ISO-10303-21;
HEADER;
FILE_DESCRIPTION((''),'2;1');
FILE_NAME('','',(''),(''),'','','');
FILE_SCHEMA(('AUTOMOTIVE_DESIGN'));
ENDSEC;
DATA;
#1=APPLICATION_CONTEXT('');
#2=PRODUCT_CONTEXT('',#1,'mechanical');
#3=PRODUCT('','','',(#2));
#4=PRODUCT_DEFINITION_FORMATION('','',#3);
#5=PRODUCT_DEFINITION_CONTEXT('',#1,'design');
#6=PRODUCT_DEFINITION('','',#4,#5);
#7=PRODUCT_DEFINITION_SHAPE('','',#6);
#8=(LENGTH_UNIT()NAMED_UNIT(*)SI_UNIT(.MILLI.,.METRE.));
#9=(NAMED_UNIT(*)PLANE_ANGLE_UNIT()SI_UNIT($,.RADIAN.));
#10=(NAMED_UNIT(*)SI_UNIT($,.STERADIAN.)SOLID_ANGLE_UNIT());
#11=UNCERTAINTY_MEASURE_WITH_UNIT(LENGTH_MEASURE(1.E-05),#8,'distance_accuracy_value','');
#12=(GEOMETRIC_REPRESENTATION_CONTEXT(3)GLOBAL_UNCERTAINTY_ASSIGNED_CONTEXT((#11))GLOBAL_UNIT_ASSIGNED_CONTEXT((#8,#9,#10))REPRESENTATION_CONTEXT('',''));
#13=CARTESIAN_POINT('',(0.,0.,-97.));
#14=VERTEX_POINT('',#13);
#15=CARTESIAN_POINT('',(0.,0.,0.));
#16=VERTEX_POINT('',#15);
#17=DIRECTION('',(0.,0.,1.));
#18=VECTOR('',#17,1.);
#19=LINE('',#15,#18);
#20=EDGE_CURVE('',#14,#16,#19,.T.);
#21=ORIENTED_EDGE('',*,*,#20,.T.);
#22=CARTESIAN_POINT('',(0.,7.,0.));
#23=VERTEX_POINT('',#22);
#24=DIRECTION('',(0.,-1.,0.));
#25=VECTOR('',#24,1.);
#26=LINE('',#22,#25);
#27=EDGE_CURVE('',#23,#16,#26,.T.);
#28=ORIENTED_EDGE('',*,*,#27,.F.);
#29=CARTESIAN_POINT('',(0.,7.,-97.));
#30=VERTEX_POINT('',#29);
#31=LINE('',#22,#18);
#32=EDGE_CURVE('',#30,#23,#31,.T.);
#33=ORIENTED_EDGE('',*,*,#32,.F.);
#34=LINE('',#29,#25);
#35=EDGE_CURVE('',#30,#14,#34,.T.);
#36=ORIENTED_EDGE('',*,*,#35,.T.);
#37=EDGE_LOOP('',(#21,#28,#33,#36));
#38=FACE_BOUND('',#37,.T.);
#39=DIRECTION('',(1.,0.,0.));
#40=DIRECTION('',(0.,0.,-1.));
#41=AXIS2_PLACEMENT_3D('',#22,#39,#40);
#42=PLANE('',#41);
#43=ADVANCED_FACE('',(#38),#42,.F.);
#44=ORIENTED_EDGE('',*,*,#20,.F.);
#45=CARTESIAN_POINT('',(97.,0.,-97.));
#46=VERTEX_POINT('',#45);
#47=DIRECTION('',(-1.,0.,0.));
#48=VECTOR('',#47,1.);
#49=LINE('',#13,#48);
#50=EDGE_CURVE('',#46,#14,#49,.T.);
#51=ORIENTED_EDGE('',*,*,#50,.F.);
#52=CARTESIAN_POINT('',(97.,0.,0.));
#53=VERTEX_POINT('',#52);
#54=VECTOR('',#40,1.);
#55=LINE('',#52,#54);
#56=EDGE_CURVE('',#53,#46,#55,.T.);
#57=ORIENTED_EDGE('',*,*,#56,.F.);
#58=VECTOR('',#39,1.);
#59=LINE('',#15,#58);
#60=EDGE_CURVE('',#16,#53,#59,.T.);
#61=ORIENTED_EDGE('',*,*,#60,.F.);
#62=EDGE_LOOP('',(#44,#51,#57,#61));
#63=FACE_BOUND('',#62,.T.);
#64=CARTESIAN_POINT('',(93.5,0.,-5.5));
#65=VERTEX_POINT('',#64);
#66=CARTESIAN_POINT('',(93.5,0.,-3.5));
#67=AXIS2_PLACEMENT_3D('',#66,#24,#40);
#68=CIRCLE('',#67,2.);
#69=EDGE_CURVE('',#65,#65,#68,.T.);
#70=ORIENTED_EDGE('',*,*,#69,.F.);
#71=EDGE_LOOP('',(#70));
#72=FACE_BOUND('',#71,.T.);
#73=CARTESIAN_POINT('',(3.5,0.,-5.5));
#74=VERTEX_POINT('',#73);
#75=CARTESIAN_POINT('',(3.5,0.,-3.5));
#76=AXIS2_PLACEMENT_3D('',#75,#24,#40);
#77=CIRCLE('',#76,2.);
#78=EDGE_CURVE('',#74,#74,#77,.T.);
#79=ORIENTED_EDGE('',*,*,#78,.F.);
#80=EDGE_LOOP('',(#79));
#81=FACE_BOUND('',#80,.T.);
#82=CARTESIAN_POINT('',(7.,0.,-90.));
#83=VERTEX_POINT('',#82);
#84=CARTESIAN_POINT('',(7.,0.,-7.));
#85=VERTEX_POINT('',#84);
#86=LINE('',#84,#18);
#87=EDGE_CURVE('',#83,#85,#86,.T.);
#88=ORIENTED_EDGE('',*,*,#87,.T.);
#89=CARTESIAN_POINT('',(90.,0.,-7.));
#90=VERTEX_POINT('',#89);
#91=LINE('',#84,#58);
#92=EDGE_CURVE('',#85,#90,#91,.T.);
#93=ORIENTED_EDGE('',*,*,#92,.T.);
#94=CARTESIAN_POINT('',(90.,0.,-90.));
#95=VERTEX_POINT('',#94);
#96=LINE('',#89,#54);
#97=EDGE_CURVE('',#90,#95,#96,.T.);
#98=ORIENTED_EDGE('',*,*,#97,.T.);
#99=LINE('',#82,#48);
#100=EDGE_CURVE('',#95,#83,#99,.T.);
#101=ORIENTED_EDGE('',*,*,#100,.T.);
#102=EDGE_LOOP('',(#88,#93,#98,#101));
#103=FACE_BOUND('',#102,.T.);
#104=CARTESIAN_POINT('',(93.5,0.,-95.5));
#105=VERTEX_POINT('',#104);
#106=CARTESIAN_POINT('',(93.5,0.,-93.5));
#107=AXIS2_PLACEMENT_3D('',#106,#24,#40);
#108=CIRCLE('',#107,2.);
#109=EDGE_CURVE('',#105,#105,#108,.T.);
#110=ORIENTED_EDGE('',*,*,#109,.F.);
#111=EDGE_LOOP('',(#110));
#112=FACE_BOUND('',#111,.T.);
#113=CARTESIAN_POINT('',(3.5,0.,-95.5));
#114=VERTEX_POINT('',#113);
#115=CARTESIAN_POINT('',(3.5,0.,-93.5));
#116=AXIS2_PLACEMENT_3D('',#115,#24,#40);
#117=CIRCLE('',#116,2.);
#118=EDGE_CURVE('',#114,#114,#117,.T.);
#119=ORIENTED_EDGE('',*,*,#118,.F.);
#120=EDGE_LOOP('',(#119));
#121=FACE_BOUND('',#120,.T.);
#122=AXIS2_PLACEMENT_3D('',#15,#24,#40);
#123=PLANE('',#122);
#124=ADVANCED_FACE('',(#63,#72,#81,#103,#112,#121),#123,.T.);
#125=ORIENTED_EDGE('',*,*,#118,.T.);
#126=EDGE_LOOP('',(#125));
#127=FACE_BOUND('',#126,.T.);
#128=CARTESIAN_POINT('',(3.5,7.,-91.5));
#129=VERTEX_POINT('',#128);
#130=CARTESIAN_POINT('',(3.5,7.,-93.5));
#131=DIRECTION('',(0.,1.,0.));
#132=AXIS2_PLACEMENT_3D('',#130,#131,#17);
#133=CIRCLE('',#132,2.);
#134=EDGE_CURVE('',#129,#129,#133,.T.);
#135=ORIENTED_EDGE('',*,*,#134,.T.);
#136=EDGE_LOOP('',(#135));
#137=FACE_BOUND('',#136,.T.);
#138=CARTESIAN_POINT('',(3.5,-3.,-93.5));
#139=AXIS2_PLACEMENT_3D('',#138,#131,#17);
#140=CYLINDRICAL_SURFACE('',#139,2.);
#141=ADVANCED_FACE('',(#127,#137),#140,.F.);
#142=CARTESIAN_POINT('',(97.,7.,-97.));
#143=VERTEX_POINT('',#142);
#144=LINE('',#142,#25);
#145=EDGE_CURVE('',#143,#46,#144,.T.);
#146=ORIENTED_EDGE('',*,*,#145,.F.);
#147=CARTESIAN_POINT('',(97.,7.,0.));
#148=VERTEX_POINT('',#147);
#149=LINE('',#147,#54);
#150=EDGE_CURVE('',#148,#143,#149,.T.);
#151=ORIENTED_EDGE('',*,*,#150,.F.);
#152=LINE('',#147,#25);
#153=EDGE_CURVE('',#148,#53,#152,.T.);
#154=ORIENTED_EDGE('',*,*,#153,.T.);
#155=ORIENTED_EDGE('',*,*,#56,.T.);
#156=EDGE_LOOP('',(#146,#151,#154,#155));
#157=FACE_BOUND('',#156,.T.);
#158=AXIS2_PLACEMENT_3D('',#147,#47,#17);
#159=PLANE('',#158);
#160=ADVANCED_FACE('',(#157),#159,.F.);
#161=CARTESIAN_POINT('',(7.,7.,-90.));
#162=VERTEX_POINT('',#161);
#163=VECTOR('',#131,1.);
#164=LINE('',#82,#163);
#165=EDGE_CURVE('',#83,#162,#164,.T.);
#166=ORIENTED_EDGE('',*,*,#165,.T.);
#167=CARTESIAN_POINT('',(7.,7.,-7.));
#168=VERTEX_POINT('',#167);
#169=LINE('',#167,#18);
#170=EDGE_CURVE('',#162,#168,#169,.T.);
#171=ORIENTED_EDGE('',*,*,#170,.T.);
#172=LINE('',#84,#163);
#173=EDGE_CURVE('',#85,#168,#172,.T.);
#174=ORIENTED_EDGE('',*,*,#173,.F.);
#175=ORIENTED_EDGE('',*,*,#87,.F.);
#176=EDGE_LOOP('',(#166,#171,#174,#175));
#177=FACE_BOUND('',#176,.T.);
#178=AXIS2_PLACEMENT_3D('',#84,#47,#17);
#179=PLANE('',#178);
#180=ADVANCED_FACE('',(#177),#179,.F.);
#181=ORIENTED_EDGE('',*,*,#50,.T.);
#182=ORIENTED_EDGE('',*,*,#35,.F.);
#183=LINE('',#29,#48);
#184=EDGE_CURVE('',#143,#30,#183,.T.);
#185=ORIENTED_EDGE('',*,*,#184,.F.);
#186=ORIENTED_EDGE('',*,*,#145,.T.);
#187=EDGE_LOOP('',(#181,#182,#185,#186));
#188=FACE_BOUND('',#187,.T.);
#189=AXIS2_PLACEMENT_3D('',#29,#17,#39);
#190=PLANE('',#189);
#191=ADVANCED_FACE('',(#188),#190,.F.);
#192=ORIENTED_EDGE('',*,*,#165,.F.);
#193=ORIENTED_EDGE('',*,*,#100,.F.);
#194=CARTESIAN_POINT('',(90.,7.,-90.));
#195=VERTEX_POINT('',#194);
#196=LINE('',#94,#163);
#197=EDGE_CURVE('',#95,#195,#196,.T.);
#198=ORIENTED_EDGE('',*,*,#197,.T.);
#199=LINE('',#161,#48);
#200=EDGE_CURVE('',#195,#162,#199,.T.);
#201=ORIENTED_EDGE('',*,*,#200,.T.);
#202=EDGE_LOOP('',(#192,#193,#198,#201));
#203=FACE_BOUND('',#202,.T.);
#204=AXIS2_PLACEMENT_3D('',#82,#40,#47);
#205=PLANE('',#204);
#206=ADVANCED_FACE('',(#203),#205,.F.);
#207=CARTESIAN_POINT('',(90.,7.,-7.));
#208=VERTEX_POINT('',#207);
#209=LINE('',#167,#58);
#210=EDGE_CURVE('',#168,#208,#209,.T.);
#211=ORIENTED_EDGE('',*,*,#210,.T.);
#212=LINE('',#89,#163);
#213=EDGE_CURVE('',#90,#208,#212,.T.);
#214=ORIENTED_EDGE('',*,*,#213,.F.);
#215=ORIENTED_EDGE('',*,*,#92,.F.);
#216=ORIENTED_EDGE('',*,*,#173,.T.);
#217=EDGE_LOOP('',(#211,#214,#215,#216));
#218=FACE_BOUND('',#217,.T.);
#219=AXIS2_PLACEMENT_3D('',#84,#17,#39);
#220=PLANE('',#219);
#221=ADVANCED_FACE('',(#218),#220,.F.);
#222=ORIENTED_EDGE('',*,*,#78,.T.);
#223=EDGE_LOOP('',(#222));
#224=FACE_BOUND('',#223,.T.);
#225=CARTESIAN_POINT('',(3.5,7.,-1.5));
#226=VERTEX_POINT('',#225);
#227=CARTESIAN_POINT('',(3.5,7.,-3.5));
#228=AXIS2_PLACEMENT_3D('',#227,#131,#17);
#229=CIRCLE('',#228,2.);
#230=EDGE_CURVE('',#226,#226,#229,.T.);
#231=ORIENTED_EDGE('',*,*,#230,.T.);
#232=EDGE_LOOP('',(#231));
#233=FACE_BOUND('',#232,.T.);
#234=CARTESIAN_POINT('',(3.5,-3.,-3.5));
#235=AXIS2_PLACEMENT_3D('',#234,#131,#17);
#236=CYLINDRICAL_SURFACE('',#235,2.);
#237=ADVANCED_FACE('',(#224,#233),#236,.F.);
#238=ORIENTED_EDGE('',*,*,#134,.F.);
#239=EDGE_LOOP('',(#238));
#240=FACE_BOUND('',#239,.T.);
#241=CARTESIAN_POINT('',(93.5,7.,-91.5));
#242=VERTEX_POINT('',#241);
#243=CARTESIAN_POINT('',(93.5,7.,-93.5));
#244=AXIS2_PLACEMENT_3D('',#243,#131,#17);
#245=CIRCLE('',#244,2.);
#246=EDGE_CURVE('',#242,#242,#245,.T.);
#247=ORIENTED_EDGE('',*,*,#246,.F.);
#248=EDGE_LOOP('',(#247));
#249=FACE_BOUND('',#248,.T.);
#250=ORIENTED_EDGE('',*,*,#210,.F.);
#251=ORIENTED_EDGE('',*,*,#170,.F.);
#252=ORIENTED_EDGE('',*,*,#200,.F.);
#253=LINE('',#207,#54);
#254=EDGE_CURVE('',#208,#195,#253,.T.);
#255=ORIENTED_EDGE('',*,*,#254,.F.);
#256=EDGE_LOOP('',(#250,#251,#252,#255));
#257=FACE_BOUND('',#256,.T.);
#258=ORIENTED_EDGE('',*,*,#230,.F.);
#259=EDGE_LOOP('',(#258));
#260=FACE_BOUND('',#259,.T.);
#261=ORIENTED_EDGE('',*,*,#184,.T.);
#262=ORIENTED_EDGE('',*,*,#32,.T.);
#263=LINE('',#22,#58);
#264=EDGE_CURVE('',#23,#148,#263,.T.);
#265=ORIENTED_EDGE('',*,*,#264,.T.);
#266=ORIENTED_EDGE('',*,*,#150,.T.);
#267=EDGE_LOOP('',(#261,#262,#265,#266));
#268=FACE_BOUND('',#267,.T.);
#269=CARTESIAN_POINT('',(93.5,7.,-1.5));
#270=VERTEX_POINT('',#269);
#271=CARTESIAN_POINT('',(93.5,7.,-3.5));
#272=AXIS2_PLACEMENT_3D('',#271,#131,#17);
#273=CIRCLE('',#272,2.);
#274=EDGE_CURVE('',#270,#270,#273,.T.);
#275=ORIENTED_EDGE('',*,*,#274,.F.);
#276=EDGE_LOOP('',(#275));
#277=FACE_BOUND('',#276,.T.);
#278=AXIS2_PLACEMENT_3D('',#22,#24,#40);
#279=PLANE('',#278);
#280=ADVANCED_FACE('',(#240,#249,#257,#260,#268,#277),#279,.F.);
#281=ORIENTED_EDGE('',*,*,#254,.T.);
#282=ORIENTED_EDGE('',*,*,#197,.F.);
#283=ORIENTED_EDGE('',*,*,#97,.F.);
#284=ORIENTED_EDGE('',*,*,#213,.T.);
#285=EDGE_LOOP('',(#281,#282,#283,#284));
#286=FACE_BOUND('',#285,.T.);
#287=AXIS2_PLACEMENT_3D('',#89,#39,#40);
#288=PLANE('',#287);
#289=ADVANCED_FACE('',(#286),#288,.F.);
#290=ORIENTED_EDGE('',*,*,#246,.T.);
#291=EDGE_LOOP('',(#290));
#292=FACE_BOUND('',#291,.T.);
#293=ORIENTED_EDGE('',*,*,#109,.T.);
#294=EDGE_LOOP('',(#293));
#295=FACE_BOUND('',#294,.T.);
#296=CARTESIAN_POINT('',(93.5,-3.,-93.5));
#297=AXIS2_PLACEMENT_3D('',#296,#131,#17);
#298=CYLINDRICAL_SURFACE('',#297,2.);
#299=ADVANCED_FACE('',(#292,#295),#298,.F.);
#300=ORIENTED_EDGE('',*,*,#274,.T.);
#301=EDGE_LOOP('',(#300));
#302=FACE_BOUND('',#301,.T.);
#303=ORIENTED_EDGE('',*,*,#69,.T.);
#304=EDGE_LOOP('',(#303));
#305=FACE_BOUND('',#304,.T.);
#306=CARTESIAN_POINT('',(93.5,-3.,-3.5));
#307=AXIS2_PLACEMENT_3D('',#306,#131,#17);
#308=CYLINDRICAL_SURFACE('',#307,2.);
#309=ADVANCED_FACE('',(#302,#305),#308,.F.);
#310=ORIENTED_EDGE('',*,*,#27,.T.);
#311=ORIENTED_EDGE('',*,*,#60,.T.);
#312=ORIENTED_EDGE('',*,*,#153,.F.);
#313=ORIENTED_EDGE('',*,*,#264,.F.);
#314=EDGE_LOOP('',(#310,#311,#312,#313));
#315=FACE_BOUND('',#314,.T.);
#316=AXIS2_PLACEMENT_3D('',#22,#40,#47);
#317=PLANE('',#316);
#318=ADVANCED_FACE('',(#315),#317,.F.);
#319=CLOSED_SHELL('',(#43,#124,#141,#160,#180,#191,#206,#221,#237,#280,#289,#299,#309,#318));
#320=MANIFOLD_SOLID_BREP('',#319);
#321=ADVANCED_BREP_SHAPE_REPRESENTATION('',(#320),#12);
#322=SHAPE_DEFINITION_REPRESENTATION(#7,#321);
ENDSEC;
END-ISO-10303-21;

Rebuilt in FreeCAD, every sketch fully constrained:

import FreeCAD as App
import Part
import Sketcher
from FreeCAD import Vector
Q = App.Units.Quantity


def add_polygon(sketch, points):
    """Adds a closed chain of lines whose ends are joined by coincident constraints."""
    first, n = sketch.GeometryCount, len(points)
    for a, b in zip(points, points[1:] + points[:1]):
        sketch.addGeometry(Part.LineSegment(App.Vector(*a, 0), App.Vector(*b, 0)), False)
    for i in range(n):
        sketch.addConstraint(Sketcher.Constraint("Coincident", first + i, 2, first + (i + 1) % n, 1))

doc = App.newDocument("Part")
params = doc.addObject("Spreadsheet::Sheet", "Params")
for row, (alias, value) in enumerate([
    ("sketch1_width", "97 mm"),
    ("pad1_length", "7 mm"),
    ("sketch2_width", "83 mm"),
    ("pocket1_length", "7 mm"),
    ("sketch3_diameter", "4 mm"),
    ("pocket2_length", "10 mm"),
], start=1):
    params.set(f"A{row}", alias)
    params.set(f"B{row}", "=" + value)
    params.setAlias(f"B{row}", alias)

body = doc.addObject("PartDesign::Body", "Body")

sketch1 = body.newObject("Sketcher::SketchObject", "Sketch")
sketch1.AttachmentSupport = (doc.getObject("XZ_Plane"), [""])
sketch1.MapMode = "FlatFace"
add_polygon(sketch1, [(0, -97), (0, 0), (97, 0), (97, -97)])
sketch1.addConstraint([
    Sketcher.Constraint("Vertical", 0),
    Sketcher.Constraint("Horizontal", 1),
    Sketcher.Constraint("Vertical", 2),
    Sketcher.Constraint("Horizontal", 3),
    Sketcher.Constraint("Coincident", 0, 2, -1, 1),
    Sketcher.Constraint("Equal", 3, 0),
    Sketcher.Constraint("DistanceX", 1, 1, 1, 2, Q("97 mm")),
])
sketch1.setExpression("Constraints[10]", "Params.sketch1_width")
pad1 = body.newObject("PartDesign::Pad", "Pad")
pad1.Profile = sketch1
pad1.setExpression("Length", "Params.pad1_length")
pad1.Reversed = True

sketch2 = body.newObject("Sketcher::SketchObject", "Sketch001")
sketch2.AttachmentSupport = (doc.getObject("XZ_Plane"), [""])
sketch2.MapMode = "FlatFace"
sketch2.AttachmentOffset = App.Placement(Vector(0, 0, -7), App.Rotation())
add_polygon(sketch2, [(7, -90), (7, -7), (90, -7), (90, -90)])
sketch2.addConstraint([
    Sketcher.Constraint("Vertical", 0),
    Sketcher.Constraint("Horizontal", 1),
    Sketcher.Constraint("Vertical", 2),
    Sketcher.Constraint("Horizontal", 3),
    Sketcher.Constraint("Equal", 3, 0),
    Sketcher.Constraint("DistanceX", 1, 1, 1, 2, Q("83 mm")),
    Sketcher.Constraint("DistanceX", -1, 1, 0, 2, Q("7 mm")),
    Sketcher.Constraint("DistanceY", 0, 2, -1, 1, Q("7 mm")),
])
sketch2.setExpression("Constraints[9]", "Params.sketch2_width")
pocket1 = body.newObject("PartDesign::Pocket", "Pocket")
pocket1.Profile = sketch2
pocket1.setExpression("Length", "Params.pocket1_length")
pocket1.Reversed = True

sketch3 = body.newObject("Sketcher::SketchObject", "Sketch002")
sketch3.AttachmentSupport = (doc.getObject("XZ_Plane"), [""])
sketch3.MapMode = "FlatFace"
sketch3.AttachmentOffset = App.Placement(Vector(0, 0, -7), App.Rotation())
sketch3.addGeometry([
    Part.Circle(Vector(3.5, -93.5, 0), Vector(0, 0, 1), 2),
    Part.Circle(Vector(93.5, -3.5, 0), Vector(0, 0, 1), 2),
    Part.Circle(Vector(3.5, -3.5, 0), Vector(0, 0, 1), 2),
    Part.Circle(Vector(93.5, -93.5, 0), Vector(0, 0, 1), 2),
], False)
sketch3.addConstraint([
    Sketcher.Constraint("Equal", 0, 1),
    Sketcher.Constraint("Equal", 1, 2),
    Sketcher.Constraint("Equal", 2, 3),
    Sketcher.Constraint("Horizontal", 1, 3, 2, 3),
    Sketcher.Constraint("Horizontal", 0, 3, 3, 3),
    Sketcher.Constraint("Vertical", 0, 3, 2, 3),
    Sketcher.Constraint("Vertical", 1, 3, 3, 3),
    Sketcher.Constraint("Diameter", 0, Q("4 mm")),
    Sketcher.Constraint("DistanceX", 0, 3, 1, 3, Q("90 mm")),
    Sketcher.Constraint("DistanceY", 0, 3, 1, 3, Q("90 mm")),
    Sketcher.Constraint("DistanceX", -1, 1, 0, 3, Q("3.5 mm")),
    Sketcher.Constraint("DistanceY", 0, 3, -1, 1, Q("93.5 mm")),
])
sketch3.setExpression("Constraints[7]", "Params.sketch3_diameter")
pocket2 = body.newObject("PartDesign::Pocket", "Pocket001")
pocket2.Profile = sketch3
pocket2.setExpression("Length", "Params.pocket2_length")
pocket2.Reversed = True

doc.recompute()
